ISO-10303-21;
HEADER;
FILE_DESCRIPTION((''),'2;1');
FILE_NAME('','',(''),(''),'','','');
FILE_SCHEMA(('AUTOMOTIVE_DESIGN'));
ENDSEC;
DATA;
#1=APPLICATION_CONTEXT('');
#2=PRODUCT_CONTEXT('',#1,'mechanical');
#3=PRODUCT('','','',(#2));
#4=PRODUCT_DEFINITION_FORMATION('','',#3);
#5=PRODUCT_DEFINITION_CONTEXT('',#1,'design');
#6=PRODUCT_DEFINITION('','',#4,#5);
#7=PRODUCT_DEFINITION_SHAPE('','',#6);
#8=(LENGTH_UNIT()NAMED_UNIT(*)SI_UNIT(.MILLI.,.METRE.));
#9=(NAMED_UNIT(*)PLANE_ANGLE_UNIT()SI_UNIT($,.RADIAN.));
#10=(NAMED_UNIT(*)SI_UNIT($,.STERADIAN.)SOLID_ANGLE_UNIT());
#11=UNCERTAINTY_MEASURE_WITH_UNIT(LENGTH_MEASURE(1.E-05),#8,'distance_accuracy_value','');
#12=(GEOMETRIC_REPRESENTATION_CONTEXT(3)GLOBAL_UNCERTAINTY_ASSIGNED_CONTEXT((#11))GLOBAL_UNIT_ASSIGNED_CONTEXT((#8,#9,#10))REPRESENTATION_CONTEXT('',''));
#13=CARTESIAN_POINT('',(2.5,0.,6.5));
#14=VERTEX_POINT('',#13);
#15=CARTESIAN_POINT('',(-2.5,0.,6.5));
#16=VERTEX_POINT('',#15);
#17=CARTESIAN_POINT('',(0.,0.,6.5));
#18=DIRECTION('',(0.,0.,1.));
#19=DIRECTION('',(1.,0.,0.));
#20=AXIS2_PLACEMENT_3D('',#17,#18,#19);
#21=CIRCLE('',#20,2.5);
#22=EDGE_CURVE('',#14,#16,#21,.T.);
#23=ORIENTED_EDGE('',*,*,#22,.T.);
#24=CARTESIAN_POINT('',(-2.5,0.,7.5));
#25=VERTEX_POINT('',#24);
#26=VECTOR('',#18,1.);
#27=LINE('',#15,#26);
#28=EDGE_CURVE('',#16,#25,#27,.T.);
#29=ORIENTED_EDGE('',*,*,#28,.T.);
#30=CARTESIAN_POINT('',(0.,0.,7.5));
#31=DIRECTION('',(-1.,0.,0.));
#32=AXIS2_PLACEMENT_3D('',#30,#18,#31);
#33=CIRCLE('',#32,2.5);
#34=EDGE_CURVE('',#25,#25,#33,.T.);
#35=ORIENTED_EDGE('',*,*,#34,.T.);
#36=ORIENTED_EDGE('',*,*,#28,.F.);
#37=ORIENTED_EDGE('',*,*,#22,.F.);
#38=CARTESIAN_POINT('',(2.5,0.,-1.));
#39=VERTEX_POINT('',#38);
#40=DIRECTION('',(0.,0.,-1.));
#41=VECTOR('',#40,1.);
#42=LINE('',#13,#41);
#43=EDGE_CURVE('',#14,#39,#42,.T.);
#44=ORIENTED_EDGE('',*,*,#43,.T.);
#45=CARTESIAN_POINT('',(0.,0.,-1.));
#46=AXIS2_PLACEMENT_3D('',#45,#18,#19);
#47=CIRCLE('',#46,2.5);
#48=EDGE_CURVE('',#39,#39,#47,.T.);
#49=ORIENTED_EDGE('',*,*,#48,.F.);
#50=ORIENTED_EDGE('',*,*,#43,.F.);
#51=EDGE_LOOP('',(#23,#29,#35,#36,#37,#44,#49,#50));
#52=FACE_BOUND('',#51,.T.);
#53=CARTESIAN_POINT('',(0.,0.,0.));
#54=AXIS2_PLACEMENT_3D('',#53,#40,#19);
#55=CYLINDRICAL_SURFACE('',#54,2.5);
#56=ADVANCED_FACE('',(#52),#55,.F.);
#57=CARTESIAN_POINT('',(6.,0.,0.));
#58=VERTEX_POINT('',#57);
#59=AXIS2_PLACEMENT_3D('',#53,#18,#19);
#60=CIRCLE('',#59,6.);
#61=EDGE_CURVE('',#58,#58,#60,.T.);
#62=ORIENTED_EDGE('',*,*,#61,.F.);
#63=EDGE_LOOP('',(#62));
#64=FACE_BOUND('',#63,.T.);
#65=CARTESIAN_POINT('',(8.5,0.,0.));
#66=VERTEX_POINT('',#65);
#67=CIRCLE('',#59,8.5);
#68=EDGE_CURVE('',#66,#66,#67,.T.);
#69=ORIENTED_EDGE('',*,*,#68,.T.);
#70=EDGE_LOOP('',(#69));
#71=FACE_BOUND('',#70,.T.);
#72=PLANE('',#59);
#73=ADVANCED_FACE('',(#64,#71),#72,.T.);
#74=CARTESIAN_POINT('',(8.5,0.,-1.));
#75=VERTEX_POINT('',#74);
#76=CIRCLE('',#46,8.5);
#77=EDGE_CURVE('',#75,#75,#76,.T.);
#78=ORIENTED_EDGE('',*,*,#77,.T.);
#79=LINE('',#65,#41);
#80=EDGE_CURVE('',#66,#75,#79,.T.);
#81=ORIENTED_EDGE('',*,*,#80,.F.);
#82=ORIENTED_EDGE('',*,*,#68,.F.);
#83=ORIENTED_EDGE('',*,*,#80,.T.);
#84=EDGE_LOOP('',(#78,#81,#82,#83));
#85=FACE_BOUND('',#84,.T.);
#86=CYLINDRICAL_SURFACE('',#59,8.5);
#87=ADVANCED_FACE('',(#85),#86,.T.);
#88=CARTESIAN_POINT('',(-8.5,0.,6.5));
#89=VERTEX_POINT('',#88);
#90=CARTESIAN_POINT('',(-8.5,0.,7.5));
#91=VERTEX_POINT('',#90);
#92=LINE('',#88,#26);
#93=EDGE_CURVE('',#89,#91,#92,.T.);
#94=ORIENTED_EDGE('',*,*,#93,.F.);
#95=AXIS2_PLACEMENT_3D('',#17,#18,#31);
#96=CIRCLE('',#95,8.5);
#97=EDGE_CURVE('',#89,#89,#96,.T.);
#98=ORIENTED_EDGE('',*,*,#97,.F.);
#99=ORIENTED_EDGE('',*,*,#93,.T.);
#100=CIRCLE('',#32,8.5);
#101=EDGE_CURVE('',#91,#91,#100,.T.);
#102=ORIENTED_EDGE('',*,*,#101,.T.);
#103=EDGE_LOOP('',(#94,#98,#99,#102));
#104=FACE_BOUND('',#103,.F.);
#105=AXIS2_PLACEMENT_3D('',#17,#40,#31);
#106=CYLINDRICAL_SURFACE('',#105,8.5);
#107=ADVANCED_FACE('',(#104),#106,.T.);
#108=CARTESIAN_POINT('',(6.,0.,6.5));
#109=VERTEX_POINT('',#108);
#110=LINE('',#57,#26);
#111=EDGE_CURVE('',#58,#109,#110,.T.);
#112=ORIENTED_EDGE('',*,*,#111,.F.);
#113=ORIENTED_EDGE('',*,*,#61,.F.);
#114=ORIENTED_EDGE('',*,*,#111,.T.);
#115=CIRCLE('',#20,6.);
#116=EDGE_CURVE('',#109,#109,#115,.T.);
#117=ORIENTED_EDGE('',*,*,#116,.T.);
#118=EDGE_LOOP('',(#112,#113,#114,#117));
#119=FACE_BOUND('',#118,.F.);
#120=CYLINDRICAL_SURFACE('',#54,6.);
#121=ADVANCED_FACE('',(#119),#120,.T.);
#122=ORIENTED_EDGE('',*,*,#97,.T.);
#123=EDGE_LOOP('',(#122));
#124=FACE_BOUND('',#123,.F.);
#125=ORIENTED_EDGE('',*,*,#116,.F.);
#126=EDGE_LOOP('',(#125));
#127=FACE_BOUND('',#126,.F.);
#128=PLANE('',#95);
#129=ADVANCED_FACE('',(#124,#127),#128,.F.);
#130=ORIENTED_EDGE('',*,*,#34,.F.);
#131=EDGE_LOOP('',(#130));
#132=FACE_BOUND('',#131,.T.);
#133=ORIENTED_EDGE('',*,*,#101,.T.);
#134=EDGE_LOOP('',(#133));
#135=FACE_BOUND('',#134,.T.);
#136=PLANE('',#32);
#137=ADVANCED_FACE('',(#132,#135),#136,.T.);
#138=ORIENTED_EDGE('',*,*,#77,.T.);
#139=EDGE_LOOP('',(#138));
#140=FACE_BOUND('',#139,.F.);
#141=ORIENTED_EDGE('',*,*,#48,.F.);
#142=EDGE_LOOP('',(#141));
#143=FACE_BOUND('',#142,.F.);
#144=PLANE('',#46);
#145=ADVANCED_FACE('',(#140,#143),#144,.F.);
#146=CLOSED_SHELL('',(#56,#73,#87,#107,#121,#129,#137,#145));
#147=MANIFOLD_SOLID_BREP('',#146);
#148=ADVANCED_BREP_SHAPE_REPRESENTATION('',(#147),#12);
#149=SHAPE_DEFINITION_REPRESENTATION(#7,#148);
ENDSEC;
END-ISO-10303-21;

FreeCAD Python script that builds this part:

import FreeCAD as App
import Part
import Sketcher

V = App.Vector

doc = App.newDocument("Part")
body = doc.addObject("PartDesign::Body", "Body")

# Sketch on XY plane
sketch1 = body.newObject("Sketcher::SketchObject", "Sketch")
sketch1.AttachmentSupport = (doc.getObject("XY_Plane"), [""])
sketch1.MapMode = "FlatFace"
sketch1.addGeometry([
    Part.Circle(V(0, 0, 0), V(0, 0, 1), 6),
    Part.Circle(V(0, 0, 0), V(0, 0, 1), 2.5),
], False)
sketch1.addConstraint([
    Sketcher.Constraint("Coincident", 0, 3, -1, 1),
    Sketcher.Constraint("Coincident", 1, 3, -1, 1),
    Sketcher.Constraint("Diameter", 0, 12.0),
    Sketcher.Constraint("Diameter", 1, 5.0),
])
pad1 = body.newObject("PartDesign::Pad", "Pad")
pad1.Profile = sketch1
pad1.Length = 6.5

# Sketch on XY plane
sketch2 = body.newObject("Sketcher::SketchObject", "Sketch001")
sketch2.AttachmentSupport = (doc.getObject("XY_Plane"), [""])
sketch2.MapMode = "FlatFace"
sketch2.addGeometry([
    Part.Circle(V(0, 0, 0), V(0, 0, 1), 8.5),
    Part.Circle(V(0, 0, 0), V(0, 0, 1), 2.5),
], False)
sketch2.addConstraint([
    Sketcher.Constraint("Coincident", 0, 3, -1, 1),
    Sketcher.Constraint("Coincident", 1, 3, -1, 1),
    Sketcher.Constraint("Diameter", 0, 17.0),
    Sketcher.Constraint("Diameter", 1, 5.0),
])
pad2 = body.newObject("PartDesign::Pad", "Pad001")
pad2.Profile = sketch2
pad2.Length = 1
pad2.Reversed = True

# Sketch on XY plane
sketch3 = body.newObject("Sketcher::SketchObject", "Sketch002")
sketch3.AttachmentSupport = (doc.getObject("XY_Plane"), [""])
sketch3.MapMode = "FlatFace"
sketch3.AttachmentOffset = App.Placement(V(0, 0, 6.5), App.Rotation())
sketch3.addGeometry([
    Part.Circle(V(0, 0, 0), V(0, 0, 1), 8.5),
    Part.Circle(V(0, 0, 0), V(0, 0, 1), 2.5),
], False)
sketch3.addConstraint([
    Sketcher.Constraint("Coincident", 0, 3, -1, 1),
    Sketcher.Constraint("Coincident", 1, 3, -1, 1),
    Sketcher.Constraint("Diameter", 0, 17.0),
    Sketcher.Constraint("Diameter", 1, 5.0),
])
pad3 = body.newObject("PartDesign::Pad", "Pad002")
pad3.Profile = sketch3
pad3.Length = 1

doc.recompute()
